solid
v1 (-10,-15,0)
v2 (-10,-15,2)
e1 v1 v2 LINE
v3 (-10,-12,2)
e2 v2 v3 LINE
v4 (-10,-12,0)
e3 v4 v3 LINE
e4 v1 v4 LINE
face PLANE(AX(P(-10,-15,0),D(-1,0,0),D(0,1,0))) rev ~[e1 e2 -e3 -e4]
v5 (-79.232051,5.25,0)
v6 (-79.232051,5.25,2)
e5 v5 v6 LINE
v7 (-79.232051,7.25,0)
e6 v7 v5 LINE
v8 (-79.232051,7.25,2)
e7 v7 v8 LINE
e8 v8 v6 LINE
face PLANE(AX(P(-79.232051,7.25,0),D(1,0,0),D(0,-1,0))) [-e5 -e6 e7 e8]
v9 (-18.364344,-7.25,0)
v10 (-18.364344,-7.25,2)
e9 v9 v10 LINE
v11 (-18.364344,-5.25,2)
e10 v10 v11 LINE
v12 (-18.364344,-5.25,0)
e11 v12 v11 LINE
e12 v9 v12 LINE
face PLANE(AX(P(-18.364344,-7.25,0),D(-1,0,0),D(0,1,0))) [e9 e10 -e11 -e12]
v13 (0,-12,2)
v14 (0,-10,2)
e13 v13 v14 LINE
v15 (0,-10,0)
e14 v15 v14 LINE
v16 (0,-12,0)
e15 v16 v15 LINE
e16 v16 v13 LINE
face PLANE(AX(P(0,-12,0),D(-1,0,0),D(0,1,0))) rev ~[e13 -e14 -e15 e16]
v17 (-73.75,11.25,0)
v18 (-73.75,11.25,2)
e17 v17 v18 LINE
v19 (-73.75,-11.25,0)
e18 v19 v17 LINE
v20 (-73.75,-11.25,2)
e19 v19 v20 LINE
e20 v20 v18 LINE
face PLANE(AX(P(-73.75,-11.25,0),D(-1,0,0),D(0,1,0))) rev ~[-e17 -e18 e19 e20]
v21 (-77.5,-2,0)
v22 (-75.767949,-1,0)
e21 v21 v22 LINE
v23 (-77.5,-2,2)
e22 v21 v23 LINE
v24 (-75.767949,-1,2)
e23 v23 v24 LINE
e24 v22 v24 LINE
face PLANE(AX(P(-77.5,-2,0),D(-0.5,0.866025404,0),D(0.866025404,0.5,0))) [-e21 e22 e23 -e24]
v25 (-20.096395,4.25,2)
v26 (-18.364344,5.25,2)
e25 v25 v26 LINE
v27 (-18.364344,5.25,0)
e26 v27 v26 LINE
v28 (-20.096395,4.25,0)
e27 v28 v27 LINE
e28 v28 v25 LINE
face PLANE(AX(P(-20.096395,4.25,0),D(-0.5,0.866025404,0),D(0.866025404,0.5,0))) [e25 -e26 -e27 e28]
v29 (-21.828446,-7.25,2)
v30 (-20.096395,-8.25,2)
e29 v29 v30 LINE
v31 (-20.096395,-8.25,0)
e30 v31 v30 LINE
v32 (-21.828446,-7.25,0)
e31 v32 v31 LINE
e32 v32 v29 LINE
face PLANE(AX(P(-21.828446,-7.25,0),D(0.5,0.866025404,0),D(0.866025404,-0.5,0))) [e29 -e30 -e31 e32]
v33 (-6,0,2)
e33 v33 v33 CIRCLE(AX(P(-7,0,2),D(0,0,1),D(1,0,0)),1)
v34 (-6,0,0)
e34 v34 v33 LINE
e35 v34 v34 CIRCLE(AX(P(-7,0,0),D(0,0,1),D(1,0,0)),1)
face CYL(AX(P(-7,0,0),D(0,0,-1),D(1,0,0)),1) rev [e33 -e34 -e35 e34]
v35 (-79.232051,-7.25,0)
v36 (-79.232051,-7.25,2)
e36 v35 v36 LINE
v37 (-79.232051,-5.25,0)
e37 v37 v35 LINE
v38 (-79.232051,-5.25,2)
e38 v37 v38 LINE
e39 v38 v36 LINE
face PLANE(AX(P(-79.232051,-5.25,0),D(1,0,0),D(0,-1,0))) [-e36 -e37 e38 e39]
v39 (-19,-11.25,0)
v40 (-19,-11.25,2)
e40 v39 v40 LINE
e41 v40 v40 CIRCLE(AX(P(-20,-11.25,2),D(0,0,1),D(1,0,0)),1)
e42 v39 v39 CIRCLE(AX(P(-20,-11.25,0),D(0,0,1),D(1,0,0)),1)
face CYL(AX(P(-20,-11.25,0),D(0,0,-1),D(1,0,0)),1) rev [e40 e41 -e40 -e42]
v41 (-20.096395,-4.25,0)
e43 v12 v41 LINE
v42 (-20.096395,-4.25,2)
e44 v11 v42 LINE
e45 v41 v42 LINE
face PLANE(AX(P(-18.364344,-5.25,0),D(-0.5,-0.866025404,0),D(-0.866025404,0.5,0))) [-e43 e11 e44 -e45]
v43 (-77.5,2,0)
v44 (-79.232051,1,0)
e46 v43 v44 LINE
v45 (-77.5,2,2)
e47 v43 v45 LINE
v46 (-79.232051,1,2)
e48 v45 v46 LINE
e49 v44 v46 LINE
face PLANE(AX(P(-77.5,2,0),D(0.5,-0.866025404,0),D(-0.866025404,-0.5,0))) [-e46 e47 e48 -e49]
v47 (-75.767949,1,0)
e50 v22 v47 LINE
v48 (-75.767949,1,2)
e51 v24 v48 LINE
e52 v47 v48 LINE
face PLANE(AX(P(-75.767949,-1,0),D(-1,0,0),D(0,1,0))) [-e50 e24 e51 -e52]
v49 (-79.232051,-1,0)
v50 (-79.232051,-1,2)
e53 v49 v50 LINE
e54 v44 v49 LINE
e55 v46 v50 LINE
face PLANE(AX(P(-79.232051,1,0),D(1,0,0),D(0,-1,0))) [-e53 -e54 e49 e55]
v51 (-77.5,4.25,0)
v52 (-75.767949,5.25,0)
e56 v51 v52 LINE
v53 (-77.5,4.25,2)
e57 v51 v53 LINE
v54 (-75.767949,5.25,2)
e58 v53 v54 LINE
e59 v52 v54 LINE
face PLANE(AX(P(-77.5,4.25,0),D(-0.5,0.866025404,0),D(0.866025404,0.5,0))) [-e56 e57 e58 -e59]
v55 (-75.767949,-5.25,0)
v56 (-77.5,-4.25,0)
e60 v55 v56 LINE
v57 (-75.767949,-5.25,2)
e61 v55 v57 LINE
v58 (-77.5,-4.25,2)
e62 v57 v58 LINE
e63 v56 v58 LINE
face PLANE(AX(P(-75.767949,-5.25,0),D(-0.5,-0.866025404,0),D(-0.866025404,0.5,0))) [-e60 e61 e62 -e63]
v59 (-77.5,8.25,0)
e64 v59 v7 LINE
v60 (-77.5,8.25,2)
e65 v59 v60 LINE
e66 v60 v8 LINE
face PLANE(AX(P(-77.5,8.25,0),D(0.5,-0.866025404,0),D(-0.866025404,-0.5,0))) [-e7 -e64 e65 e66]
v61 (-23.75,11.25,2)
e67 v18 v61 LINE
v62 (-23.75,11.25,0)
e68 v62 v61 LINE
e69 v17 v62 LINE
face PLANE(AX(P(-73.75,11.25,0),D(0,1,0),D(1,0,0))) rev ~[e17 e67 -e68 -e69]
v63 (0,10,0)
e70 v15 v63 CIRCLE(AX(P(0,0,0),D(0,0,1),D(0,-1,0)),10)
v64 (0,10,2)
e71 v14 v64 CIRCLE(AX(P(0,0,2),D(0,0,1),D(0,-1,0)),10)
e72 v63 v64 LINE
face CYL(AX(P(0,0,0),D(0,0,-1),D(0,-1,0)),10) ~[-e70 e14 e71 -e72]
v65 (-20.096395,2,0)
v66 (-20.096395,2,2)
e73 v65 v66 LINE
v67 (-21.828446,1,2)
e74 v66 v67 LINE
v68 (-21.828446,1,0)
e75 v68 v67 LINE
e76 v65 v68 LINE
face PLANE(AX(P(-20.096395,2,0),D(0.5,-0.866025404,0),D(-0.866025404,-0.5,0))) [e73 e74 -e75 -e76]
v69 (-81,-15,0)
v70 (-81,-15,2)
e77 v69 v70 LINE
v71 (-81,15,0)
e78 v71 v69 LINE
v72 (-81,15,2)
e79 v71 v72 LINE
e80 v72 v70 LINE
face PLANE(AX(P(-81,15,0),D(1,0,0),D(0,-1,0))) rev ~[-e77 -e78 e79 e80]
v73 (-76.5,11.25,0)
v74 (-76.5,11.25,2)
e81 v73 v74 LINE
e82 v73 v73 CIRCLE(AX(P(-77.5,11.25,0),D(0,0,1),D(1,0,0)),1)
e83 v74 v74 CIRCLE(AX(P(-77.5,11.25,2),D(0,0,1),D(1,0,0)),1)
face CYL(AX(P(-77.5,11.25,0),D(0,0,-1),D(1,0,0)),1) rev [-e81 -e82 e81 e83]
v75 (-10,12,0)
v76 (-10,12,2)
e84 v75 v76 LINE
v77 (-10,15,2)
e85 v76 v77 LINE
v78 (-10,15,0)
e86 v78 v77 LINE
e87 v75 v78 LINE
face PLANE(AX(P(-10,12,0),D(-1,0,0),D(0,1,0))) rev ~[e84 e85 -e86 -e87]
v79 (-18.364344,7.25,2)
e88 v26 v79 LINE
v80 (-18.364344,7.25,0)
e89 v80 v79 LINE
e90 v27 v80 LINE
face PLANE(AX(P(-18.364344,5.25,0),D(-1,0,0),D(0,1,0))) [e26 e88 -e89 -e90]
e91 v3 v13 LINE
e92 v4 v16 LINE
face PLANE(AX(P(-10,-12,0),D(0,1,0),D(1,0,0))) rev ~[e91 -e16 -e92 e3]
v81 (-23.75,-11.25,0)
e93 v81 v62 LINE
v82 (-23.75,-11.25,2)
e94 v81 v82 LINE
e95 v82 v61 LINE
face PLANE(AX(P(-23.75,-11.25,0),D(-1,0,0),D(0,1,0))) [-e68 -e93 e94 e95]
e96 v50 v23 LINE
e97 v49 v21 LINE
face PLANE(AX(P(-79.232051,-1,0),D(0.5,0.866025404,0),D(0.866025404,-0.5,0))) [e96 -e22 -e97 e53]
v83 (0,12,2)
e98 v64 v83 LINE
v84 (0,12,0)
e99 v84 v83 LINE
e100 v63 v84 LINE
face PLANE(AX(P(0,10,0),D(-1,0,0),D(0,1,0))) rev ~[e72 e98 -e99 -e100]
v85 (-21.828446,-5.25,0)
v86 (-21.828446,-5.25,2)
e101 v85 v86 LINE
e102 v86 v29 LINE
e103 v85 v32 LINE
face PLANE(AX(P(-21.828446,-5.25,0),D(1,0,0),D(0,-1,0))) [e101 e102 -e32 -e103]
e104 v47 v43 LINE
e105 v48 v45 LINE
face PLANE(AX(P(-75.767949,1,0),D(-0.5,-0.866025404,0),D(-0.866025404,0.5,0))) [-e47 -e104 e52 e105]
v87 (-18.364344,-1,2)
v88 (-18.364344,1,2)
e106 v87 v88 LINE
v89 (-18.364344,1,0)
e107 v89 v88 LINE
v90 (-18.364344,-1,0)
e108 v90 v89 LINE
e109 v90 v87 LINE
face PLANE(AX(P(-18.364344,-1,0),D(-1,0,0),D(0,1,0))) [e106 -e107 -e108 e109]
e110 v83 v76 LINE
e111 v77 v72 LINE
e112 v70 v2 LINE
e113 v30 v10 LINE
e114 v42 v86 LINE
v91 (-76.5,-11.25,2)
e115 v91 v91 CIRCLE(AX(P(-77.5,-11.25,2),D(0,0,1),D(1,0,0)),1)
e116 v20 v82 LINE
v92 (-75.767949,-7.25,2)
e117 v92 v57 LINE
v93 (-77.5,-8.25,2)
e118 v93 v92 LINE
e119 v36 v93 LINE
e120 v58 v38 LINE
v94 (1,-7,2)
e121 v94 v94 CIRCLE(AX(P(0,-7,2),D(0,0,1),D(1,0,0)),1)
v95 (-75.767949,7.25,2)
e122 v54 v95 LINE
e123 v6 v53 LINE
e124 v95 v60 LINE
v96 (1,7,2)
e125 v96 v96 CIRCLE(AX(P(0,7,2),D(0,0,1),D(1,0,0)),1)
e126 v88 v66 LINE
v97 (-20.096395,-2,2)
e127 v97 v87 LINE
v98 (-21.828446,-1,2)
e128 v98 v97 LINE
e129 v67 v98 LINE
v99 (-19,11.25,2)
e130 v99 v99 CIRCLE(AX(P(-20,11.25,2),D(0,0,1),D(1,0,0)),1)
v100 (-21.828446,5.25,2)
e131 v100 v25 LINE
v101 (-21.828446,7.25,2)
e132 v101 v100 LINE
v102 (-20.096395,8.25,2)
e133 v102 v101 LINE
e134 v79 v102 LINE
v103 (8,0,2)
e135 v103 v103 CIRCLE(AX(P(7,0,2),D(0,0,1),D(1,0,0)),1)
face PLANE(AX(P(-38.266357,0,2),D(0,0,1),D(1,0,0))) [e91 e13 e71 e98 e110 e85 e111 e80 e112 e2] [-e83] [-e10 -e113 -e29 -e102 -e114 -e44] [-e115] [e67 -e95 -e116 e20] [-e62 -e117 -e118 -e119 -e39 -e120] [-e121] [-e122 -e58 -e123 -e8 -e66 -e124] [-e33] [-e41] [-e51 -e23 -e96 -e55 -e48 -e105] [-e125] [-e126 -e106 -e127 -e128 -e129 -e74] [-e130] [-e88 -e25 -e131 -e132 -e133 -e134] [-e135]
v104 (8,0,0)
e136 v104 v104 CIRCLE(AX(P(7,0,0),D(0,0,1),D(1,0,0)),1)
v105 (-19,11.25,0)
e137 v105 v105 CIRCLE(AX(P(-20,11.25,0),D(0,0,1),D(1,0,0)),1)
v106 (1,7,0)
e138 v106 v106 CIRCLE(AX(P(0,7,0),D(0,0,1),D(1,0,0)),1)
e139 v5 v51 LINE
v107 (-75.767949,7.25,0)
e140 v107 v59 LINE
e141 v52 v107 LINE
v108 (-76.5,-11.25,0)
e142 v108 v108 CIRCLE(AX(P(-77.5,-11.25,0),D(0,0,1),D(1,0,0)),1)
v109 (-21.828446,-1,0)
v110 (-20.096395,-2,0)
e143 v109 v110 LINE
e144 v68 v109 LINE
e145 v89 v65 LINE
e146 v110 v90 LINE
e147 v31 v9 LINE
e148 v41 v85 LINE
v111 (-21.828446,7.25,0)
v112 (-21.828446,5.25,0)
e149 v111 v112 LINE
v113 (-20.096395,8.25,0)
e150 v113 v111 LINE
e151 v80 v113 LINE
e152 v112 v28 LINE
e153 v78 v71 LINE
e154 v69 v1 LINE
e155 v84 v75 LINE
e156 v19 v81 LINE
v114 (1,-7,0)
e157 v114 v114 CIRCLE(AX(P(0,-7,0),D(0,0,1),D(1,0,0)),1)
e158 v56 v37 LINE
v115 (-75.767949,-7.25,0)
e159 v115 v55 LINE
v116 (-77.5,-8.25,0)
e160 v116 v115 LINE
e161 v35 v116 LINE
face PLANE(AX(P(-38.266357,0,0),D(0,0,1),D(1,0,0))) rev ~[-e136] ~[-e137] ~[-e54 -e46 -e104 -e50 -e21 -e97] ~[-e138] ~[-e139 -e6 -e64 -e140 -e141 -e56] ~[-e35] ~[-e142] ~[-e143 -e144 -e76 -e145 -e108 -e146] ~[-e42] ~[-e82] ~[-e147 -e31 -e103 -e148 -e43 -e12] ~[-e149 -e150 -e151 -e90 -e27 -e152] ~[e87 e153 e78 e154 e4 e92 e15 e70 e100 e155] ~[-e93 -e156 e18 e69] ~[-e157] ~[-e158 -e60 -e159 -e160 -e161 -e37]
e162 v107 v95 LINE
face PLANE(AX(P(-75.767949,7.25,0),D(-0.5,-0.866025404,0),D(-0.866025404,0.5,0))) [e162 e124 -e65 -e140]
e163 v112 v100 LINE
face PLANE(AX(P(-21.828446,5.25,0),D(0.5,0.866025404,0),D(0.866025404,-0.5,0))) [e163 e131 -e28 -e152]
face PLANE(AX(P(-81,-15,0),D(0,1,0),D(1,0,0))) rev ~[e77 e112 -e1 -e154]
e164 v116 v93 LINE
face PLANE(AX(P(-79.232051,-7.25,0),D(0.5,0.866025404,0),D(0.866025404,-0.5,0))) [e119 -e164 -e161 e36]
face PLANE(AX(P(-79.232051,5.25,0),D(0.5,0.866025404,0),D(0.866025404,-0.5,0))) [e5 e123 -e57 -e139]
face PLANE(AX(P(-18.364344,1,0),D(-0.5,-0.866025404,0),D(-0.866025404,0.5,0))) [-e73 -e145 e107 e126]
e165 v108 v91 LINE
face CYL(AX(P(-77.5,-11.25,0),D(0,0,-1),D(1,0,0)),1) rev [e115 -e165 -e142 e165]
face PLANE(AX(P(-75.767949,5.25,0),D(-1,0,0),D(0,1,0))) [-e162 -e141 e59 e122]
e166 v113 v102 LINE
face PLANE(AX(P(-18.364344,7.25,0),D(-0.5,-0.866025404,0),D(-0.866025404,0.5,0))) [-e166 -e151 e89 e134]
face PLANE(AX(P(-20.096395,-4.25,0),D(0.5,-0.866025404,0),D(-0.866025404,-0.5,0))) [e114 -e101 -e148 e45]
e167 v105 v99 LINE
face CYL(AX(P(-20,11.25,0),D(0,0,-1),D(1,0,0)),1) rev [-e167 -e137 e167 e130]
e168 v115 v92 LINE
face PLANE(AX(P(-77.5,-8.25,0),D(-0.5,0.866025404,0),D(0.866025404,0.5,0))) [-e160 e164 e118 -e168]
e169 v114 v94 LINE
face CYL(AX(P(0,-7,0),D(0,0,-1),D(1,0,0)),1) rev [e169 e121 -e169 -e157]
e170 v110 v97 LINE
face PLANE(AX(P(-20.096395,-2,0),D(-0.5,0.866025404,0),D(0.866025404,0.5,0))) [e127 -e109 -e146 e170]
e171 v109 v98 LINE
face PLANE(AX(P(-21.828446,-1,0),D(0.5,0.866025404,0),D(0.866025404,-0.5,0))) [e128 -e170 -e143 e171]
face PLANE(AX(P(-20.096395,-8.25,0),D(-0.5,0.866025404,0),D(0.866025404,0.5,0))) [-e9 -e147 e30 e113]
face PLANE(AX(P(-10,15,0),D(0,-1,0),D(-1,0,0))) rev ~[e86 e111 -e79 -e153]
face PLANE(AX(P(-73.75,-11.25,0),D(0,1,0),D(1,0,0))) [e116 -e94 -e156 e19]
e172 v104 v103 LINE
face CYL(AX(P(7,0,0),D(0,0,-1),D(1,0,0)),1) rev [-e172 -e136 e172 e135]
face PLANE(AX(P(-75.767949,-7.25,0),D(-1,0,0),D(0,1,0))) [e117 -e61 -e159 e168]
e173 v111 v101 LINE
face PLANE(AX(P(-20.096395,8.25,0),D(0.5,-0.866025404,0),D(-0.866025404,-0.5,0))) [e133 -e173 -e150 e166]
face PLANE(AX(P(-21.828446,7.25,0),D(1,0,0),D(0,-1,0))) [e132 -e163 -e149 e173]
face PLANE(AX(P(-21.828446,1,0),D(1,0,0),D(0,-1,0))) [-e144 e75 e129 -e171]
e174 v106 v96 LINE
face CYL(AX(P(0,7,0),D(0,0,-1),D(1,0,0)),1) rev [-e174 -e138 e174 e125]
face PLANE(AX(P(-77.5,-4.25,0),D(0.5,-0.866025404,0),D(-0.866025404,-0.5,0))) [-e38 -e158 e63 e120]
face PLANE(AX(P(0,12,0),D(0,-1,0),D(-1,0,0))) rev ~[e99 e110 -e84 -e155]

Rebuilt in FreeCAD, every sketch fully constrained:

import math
import FreeCAD as App
import Part
import Sketcher
Q = App.Units.Quantity


def add_polygon(sketch, points):
    """Adds a closed chain of lines whose ends are joined by coincident constraints."""
    first, n = sketch.GeometryCount, len(points)
    for a, b in zip(points, points[1:] + points[:1]):
        sketch.addGeometry(Part.LineSegment(App.Vector(*a, 0), App.Vector(*b, 0)), False)
    for i in range(n):
        sketch.addConstraint(Sketcher.Constraint("Coincident", first + i, 2, first + (i + 1) % n, 1))

doc = App.newDocument("Part")
body = doc.addObject("PartDesign::Body", "Body")

sketch1 = doc.addObject("Sketcher::SketchObject", "Sketch")
body.addObject(sketch1)
sketch1.AttachmentSupport = (doc.XY_Plane, [""])
sketch1.MapMode = "FlatFace"
sketch1.addGeometry(Part.LineSegment(App.Vector(0, 10, 0), App.Vector(0, 12, 0)), False)
sketch1.addGeometry(Part.LineSegment(App.Vector(0, 12, 0), App.Vector(-10, 12, 0)), False)
sketch1.addGeometry(Part.LineSegment(App.Vector(-10, 12, 0), App.Vector(-10, 15, 0)), False)
sketch1.addGeometry(Part.LineSegment(App.Vector(-10, 15, 0), App.Vector(-81, 15, 0)), False)
sketch1.addGeometry(Part.LineSegment(App.Vector(-81, 15, 0), App.Vector(-81, -15, 0)), False)
sketch1.addGeometry(Part.LineSegment(App.Vector(-81, -15, 0), App.Vector(-10, -15, 0)), False)
sketch1.addGeometry(Part.LineSegment(App.Vector(-10, -15, 0), App.Vector(-10, -12, 0)), False)
sketch1.addGeometry(Part.LineSegment(App.Vector(-10, -12, 0), App.Vector(0, -12, 0)), False)
sketch1.addGeometry(Part.LineSegment(App.Vector(0, -12, 0), App.Vector(0, -10, 0)), False)
sketch1.addGeometry(Part.ArcOfCircle(Part.Circle(App.Vector(0, 0, 0), App.Vector(0, 0, 1), 10), math.radians(-90), math.radians(90)), False)
sketch1.addGeometry(Part.Circle(App.Vector(-77.5, -11.2, 0), App.Vector(0, 0, 1), 1), False)
add_polygon(sketch1, [(-75.8, -7.2), (-77.5, -8.2), (-79.2, -7.2), (-79.2, -5.2), (-77.5, -4.2), (-75.8, -5.2)])
add_polygon(sketch1, [(-75.8, -1), (-77.5, -2), (-79.2, -1), (-79.2, 1), (-77.5, 2), (-75.8, 1)])
add_polygon(sketch1, [(-23.8, -11.2), (-73.8, -11.2), (-73.8, 11.2), (-23.8, 11.2)])
sketch1.addGeometry(Part.Circle(App.Vector(-20, -11.2, 0), App.Vector(0, 0, 1), 1), False)
add_polygon(sketch1, [(-18.4, -7.2), (-20.1, -8.2), (-21.8, -7.2), (-21.8, -5.2), (-20.1, -4.2), (-18.4, -5.2)])
sketch1.addGeometry(Part.Circle(App.Vector(0, -7, 0), App.Vector(0, 0, 1), 1), False)
add_polygon(sketch1, [(-18.4, -1), (-20.1, -2), (-21.8, -1), (-21.8, 1), (-20.1, 2), (-18.4, 1)])
sketch1.addGeometry(Part.Circle(App.Vector(-7, 0, 0), App.Vector(0, 0, 1), 1), False)
sketch1.addGeometry(Part.Circle(App.Vector(7, 0, 0), App.Vector(0, 0, 1), 1), False)
add_polygon(sketch1, [(-75.8, 5.2), (-77.5, 4.2), (-79.2, 5.2), (-79.2, 7.2), (-77.5, 8.2), (-75.8, 7.2)])
sketch1.addGeometry(Part.Circle(App.Vector(-77.5, 11.2, 0), App.Vector(0, 0, 1), 1), False)
add_polygon(sketch1, [(-21.8, 7.2), (-20.1, 8.2), (-18.4, 7.2), (-18.4, 5.2), (-20.1, 4.2), (-21.8, 5.2)])
sketch1.addGeometry(Part.Circle(App.Vector(-20, 11.2, 0), App.Vector(0, 0, 1), 1), False)
sketch1.addGeometry(Part.Circle(App.Vector(0, 7, 0), App.Vector(0, 0, 1), 1), False)
sketch1.addConstraint([
    Sketcher.Constraint("Coincident", 0, 2, 1, 1),
    Sketcher.Constraint("Coincident", 1, 2, 2, 1),
    Sketcher.Constraint("Coincident", 2, 2, 3, 1),
    Sketcher.Constraint("Coincident", 3, 2, 4, 1),
    Sketcher.Constraint("Coincident", 4, 2, 5, 1),
    Sketcher.Constraint("Coincident", 5, 2, 6, 1),
    Sketcher.Constraint("Coincident", 6, 2, 7, 1),
    Sketcher.Constraint("Coincident", 7, 2, 8, 1),
    Sketcher.Constraint("Coincident", 8, 2, 9, 1),
    Sketcher.Constraint("Coincident", 9, 2, 0, 1),
    Sketcher.Constraint("Vertical", 0),
    Sketcher.Constraint("Horizontal", 1),
    Sketcher.Constraint("Vertical", 2),
    Sketcher.Constraint("Horizontal", 3),
    Sketcher.Constraint("Vertical", 4),
    Sketcher.Constraint("Horizontal", 5),
    Sketcher.Constraint("Vertical", 6),
    Sketcher.Constraint("Horizontal", 7),
    Sketcher.Constraint("Vertical", 8),
    Sketcher.Constraint("Vertical", 13),
    Sketcher.Constraint("Vertical", 16),
    Sketcher.Constraint("Vertical", 19),
    Sketcher.Constraint("Vertical", 22),
    Sketcher.Constraint("Horizontal", 23),
    Sketcher.Constraint("Vertical", 24),
    Sketcher.Constraint("Horizontal", 25),
    Sketcher.Constraint("Vertical", 26),
    Sketcher.Constraint("Vertical", 30),
    Sketcher.Constraint("Vertical", 33),
    Sketcher.Constraint("Vertical", 37),
    Sketcher.Constraint("Vertical", 40),
    Sketcher.Constraint("Vertical", 45),
    Sketcher.Constraint("Vertical", 48),
    Sketcher.Constraint("Vertical", 52),
    Sketcher.Constraint("Vertical", 55),
    Sketcher.Constraint("Coincident", 9, 3, -1, 1),
    Sketcher.Constraint("Equal", 10, 27),
    Sketcher.Constraint("Equal", 27, 34),
    Sketcher.Constraint("Equal", 34, 41),
    Sketcher.Constraint("Equal", 41, 42),
    Sketcher.Constraint("Equal", 42, 49),
    Sketcher.Constraint("Equal", 49, 56),
    Sketcher.Constraint("Equal", 56, 57),
    Sketcher.Constraint("Symmetric", 41, 3, 42, 3, -1, 1),
    Sketcher.Constraint("Symmetric", 34, 3, 57, 3, -1, 1),
    Sketcher.Constraint("Symmetric", 0, 2, 7, 2, -1, 1),
    Sketcher.Constraint("Symmetric", 10, 3, 49, 3, -1),
    Sketcher.Constraint("Symmetric", 27, 3, 56, 3, -1),
    Sketcher.Constraint("Symmetric", 2, 2, 5, 2, -1),
    Sketcher.Constraint("Symmetric", 17, 2, 20, 2, -1),
    Sketcher.Constraint("Symmetric", 35, 2, 38, 2, -1),
    Sketcher.Constraint("Symmetric", 14, 2, 43, 2, -1),
    Sketcher.Constraint("Symmetric", 13, 2, 44, 2, -1),
    Sketcher.Constraint("Symmetric", 11, 2, 46, 2, -1),
    Sketcher.Constraint("Symmetric", 16, 2, 47, 2, -1),
    Sketcher.Constraint("Symmetric", 28, 2, 50, 2, -1),
    Sketcher.Constraint("Symmetric", 33, 2, 51, 2, -1),
    Sketcher.Constraint("Symmetric", 31, 2, 53, 2, -1),
    Sketcher.Constraint("Symmetric", 30, 2, 54, 2, -1),
    Sketcher.Constraint("PointOnObject", 34, 3, -2),
    Sketcher.Constraint("PointOnObject", 41, 3, -1),
    Sketcher.Constraint("PointOnObject", 0, 2, -2),
    Sketcher.Constraint("Parallel", 11, 14),
    Sketcher.Constraint("Parallel", 12, 15),
    Sketcher.Constraint("Parallel", 14, 17),
    Sketcher.Constraint("Parallel", 15, 18),
    Sketcher.Constraint("Parallel", 17, 20),
    Sketcher.Constraint("Parallel", 18, 21),
    Sketcher.Constraint("Parallel", 20, 28),
    Sketcher.Constraint("Parallel", 21, 29),
    Sketcher.Constraint("Parallel", 28, 31),
    Sketcher.Constraint("Parallel", 29, 32),
    Sketcher.Constraint("Parallel", 31, 35),
    Sketcher.Constraint("Parallel", 32, 36),
    Sketcher.Constraint("Parallel", 35, 38),
    Sketcher.Constraint("Parallel", 36, 39),
    Sketcher.Constraint("Parallel", 38, 43),
    Sketcher.Constraint("Parallel", 39, 44),
    Sketcher.Constraint("Parallel", 43, 46),
    Sketcher.Constraint("Parallel", 46, 50),
    Sketcher.Constraint("Parallel", 50, 53),
    Sketcher.Constraint("Horizontal", 10, 3, 27, 3),
    Sketcher.Constraint("Horizontal", 13, 2, 15, 2),
    Sketcher.Constraint("Horizontal", 12, 2, 16, 2),
    Sketcher.Constraint("Horizontal", 19, 2, 21, 2),
    Sketcher.Constraint("Horizontal", 27, 3, 23, 2),
    Sketcher.Constraint("Horizontal", 56, 3, 24, 2),
    Sketcher.Constraint("Horizontal", 11, 2, 28, 2),
    Sketcher.Constraint("Horizontal", 16, 2, 29, 2),
    Sketcher.Constraint("Horizontal", 15, 2, 30, 2),
    Sketcher.Constraint("Horizontal", 14, 2, 31, 2),
    Sketcher.Constraint("Horizontal", 30, 2, 32, 2),
    Sketcher.Constraint("Horizontal", 17, 2, 35, 2),
    Sketcher.Constraint("Horizontal", 22, 2, 36, 2),
    Sketcher.Constraint("Horizontal", 37, 2, 39, 2),
    Sketcher.Constraint("Vertical", 49, 3, 11, 2),
    Sketcher.Constraint("Vertical", 14, 2, 17, 2),
    Sketcher.Constraint("Vertical", 13, 2, 18, 2),
    Sketcher.Constraint("Vertical", 31, 2, 35, 2),
    Sketcher.Constraint("Equal", 8, 13),
    Sketcher.Constraint("Equal", 16, 19),
    Sketcher.Constraint("Diameter", 10, 2.0),
    Sketcher.Constraint("Radius", 9, 10.0),
    Sketcher.Constraint("DistanceX", 1, 2, 1, 1, 10.0),
    Sketcher.Constraint("DistanceX", 3, 2, 3, 1, 71.0),
    Sketcher.Constraint("DistanceX", 23, 2, 23, 1, 50.0),
    Sketcher.Constraint("DistanceY", 0, 1, 0, 2, 2.0),
    Sketcher.Constraint("DistanceY", 2, 1, 2, 2, 3.0),
    Sketcher.Constraint("Angle", 11, Q("-150 deg")),
    Sketcher.Constraint("Distance", 11, 2.0),
    Sketcher.Constraint("DistanceY", 24, 1, 24, 2, 22.5),
    Sketcher.Constraint("DistanceX", 27, 3, -1, 1, 20.0),
    Sketcher.Constraint("DistanceY", 34, 3, -1, 1, 7.0),
    Sketcher.Constraint("DistanceX", 41, 3, -1, 1, 7.0),
    Sketcher.Constraint("DistanceY", 10, 3, 11, 2, 3.0),
    Sketcher.Constraint("DistanceX", 10, 3, -1, 1, 77.5),
    Sketcher.Constraint("DistanceX", 23, 2, -1, 1, 73.75),
    Sketcher.Constraint("DistanceX", 28, 2, -1, 1, 20.096395),
])
pad1 = doc.addObject("PartDesign::Pad", "Pad")
body.addObject(pad1)
pad1.Profile = sketch1
pad1.Length = 2

doc.recompute()
